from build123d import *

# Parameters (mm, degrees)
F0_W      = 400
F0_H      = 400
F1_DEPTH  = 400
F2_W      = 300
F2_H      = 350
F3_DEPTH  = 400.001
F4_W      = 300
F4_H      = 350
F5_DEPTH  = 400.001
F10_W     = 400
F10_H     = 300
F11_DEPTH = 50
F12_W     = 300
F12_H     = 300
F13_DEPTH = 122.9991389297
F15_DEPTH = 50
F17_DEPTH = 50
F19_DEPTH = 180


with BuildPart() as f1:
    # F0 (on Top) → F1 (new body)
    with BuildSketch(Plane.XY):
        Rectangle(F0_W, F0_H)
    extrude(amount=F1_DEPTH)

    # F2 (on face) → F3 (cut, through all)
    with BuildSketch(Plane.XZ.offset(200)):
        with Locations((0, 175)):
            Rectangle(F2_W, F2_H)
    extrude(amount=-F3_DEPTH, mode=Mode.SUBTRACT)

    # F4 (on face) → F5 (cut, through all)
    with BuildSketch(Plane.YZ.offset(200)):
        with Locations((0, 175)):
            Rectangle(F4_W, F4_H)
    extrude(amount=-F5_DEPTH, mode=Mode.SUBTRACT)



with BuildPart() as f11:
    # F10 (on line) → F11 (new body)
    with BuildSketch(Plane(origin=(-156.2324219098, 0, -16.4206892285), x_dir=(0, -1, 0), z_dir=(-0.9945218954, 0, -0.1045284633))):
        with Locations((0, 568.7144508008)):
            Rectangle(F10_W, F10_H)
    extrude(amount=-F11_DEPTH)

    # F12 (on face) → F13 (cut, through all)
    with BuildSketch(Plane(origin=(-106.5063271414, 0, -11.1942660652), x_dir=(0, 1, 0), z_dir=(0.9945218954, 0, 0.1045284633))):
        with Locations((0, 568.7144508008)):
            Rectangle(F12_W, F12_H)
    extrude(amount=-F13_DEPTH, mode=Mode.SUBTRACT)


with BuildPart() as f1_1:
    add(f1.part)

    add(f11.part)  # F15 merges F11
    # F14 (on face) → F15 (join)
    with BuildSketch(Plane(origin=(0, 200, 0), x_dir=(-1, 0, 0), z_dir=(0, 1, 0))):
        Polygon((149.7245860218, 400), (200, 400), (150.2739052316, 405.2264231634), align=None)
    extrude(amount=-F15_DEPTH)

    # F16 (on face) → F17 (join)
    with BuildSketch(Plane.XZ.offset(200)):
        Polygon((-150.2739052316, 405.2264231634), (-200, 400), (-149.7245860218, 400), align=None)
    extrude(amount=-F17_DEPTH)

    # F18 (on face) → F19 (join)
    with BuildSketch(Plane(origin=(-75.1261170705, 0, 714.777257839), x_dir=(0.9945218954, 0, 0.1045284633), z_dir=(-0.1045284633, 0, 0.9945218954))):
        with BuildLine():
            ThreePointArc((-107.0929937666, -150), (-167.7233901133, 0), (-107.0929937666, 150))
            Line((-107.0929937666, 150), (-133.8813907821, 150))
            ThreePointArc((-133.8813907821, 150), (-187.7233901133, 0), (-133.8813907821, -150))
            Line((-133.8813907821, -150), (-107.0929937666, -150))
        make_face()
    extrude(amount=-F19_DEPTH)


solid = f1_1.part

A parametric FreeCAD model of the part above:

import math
import FreeCAD as App
import Part
import Sketcher

V = App.Vector
Q = App.Units.Quantity

doc = App.newDocument("Part")
body = doc.addObject("PartDesign::Body", "Body")

# Sketch on XY plane
sketch1 = body.newObject("Sketcher::SketchObject", "Sketch")
sketch1.AttachmentSupport = (doc.getObject("XY_Plane"), [""])
sketch1.MapMode = "FlatFace"
sketch1.addGeometry([
    Part.LineSegment(V(-200, 200, 0), V(-200, -200, 0)),
    Part.LineSegment(V(-200, -200, 0), V(200, -200, 0)),
    Part.LineSegment(V(200, -200, 0), V(200, 200, 0)),
    Part.LineSegment(V(200, 200, 0), V(-200, 200, 0)),
], False)
sketch1.addConstraint([
    Sketcher.Constraint("Coincident", 0, 2, 1, 1),
    Sketcher.Constraint("Coincident", 1, 2, 2, 1),
    Sketcher.Constraint("Coincident", 2, 2, 3, 1),
    Sketcher.Constraint("Coincident", 3, 2, 0, 1),
    Sketcher.Constraint("Vertical", 0),
    Sketcher.Constraint("Horizontal", 1),
    Sketcher.Constraint("Vertical", 2),
    Sketcher.Constraint("Horizontal", 3),
    Sketcher.Constraint("Symmetric", 0, 2, 2, 2, -1, 1),
    Sketcher.Constraint("Equal", 3, 0),
    Sketcher.Constraint("DistanceX", 1, 1, 1, 2, Q("400 mm")),
])
pad1 = body.newObject("PartDesign::Pad", "Pad")
pad1.Profile = sketch1
pad1.Length = 400

# Sketch on XZ plane
sketch2 = body.newObject("Sketcher::SketchObject", "Sketch001")
sketch2.AttachmentSupport = (doc.getObject("XZ_Plane"), [""])
sketch2.MapMode = "FlatFace"
sketch2.AttachmentOffset = App.Placement(V(0, 0, 200), App.Rotation())
sketch2.addGeometry([
    Part.LineSegment(V(-150, 350, 0), V(-150, 0, 0)),
    Part.LineSegment(V(-150, 0, 0), V(150, 0, 0)),
    Part.LineSegment(V(150, 0, 0), V(150, 350, 0)),
    Part.LineSegment(V(150, 350, 0), V(-150, 350, 0)),
], False)
sketch2.addConstraint([
    Sketcher.Constraint("Coincident", 0, 2, 1, 1),
    Sketcher.Constraint("Coincident", 1, 2, 2, 1),
    Sketcher.Constraint("Coincident", 2, 2, 3, 1),
    Sketcher.Constraint("Coincident", 3, 2, 0, 1),
    Sketcher.Constraint("Vertical", 0),
    Sketcher.Constraint("Horizontal", 1),
    Sketcher.Constraint("Vertical", 2),
    Sketcher.Constraint("Horizontal", 3),
    Sketcher.Constraint("Symmetric", 0, 2, 1, 2, -1, 1),
    Sketcher.Constraint("DistanceX", 1, 1, 1, 2, Q("300 mm")),
    Sketcher.Constraint("DistanceY", 0, 2, 0, 1, Q("350 mm")),
])
pocket1 = body.newObject("PartDesign::Pocket", "Pocket")
pocket1.Profile = sketch2
pocket1.Type = "ThroughAll"

# Sketch on YZ plane
sketch3 = body.newObject("Sketcher::SketchObject", "Sketch002")
sketch3.AttachmentSupport = (doc.getObject("YZ_Plane"), [""])
sketch3.MapMode = "FlatFace"
sketch3.AttachmentOffset = App.Placement(V(0, 0, 200), App.Rotation())
sketch3.addGeometry([
    Part.LineSegment(V(-150, 350, 0), V(-150, 0, 0)),
    Part.LineSegment(V(-150, 0, 0), V(150, 0, 0)),
    Part.LineSegment(V(150, 0, 0), V(150, 350, 0)),
    Part.LineSegment(V(150, 350, 0), V(-150, 350, 0)),
], False)
sketch3.addConstraint([
    Sketcher.Constraint("Coincident", 0, 2, 1, 1),
    Sketcher.Constraint("Coincident", 1, 2, 2, 1),
    Sketcher.Constraint("Coincident", 2, 2, 3, 1),
    Sketcher.Constraint("Coincident", 3, 2, 0, 1),
    Sketcher.Constraint("Vertical", 0),
    Sketcher.Constraint("Horizontal", 1),
    Sketcher.Constraint("Vertical", 2),
    Sketcher.Constraint("Horizontal", 3),
    Sketcher.Constraint("Symmetric", 0, 2, 1, 2, -1, 1),
    Sketcher.Constraint("DistanceX", 1, 1, 1, 2, Q("300 mm")),
    Sketcher.Constraint("DistanceY", 0, 2, 0, 1, Q("350 mm")),
])
pocket2 = body.newObject("PartDesign::Pocket", "Pocket001")
pocket2.Profile = sketch3
pocket2.Type = "ThroughAll"
body2 = doc.addObject("PartDesign::Body", "Body001")
body2.AllowCompound = True

# Sketch on an angled plane
sketch4 = body2.newObject("Sketcher::SketchObject", "Sketch003")
sketch4.Placement = App.Placement(V(-156.232422, 0, -16.420689), App.Rotation(V(0, -1, 0), V(-0.104528463, 0, 0.994521895), V(-0.994521895, 0, -0.104528463), "ZXY"))
sketch4.addGeometry([
    Part.LineSegment(V(-200, 719, 0), V(-200, 419, 0)),
    Part.LineSegment(V(-200, 419, 0), V(200, 419, 0)),
    Part.LineSegment(V(200, 419, 0), V(200, 719, 0)),
    Part.LineSegment(V(200, 719, 0), V(-200, 719, 0)),
], False)
sketch4.addConstraint([
    Sketcher.Constraint("Coincident", 0, 2, 1, 1),
    Sketcher.Constraint("Coincident", 1, 2, 2, 1),
    Sketcher.Constraint("Coincident", 2, 2, 3, 1),
    Sketcher.Constraint("Coincident", 3, 2, 0, 1),
    Sketcher.Constraint("Vertical", 0),
    Sketcher.Constraint("Horizontal", 1),
    Sketcher.Constraint("Vertical", 2),
    Sketcher.Constraint("Horizontal", 3),
    Sketcher.Constraint("DistanceX", 1, 1, 1, 2, Q("400 mm")),
    Sketcher.Constraint("DistanceY", 0, 2, 0, 1, Q("300 mm")),
    Sketcher.Constraint("DistanceX", 0, 2, -1, 1, Q("200 mm")),
    Sketcher.Constraint("DistanceY", -1, 1, 0, 2, Q("418.71445 mm")),
])
pad2 = body2.newObject("PartDesign::Pad", "Pad001")
pad2.Profile = sketch4
pad2.Length = 50
pad2.Reversed = True

# Sketch on an angled plane
sketch5 = body2.newObject("Sketcher::SketchObject", "Sketch004")
sketch5.Placement = App.Placement(V(-106.506327, 0, -11.194266), App.Rotation(V(0, 1, 0), V(-0.104528463, 0, 0.994521895), V(0.994521895, 0, 0.104528463), "ZXY"))
sketch5.addGeometry([
    Part.LineSegment(V(-150, 719, 0), V(-150, 419, 0)),
    Part.LineSegment(V(-150, 419, 0), V(150, 419, 0)),
    Part.LineSegment(V(150, 419, 0), V(150, 719, 0)),
    Part.LineSegment(V(150, 719, 0), V(-150, 719, 0)),
], False)
sketch5.addConstraint([
    Sketcher.Constraint("Coincident", 0, 2, 1, 1),
    Sketcher.Constraint("Coincident", 1, 2, 2, 1),
    Sketcher.Constraint("Coincident", 2, 2, 3, 1),
    Sketcher.Constraint("Coincident", 3, 2, 0, 1),
    Sketcher.Constraint("Vertical", 0),
    Sketcher.Constraint("Horizontal", 1),
    Sketcher.Constraint("Vertical", 2),
    Sketcher.Constraint("Horizontal", 3),
    Sketcher.Constraint("Equal", 3, 0),
    Sketcher.Constraint("DistanceX", 1, 1, 1, 2, Q("300 mm")),
    Sketcher.Constraint("DistanceX", 0, 2, -1, 1, Q("150 mm")),
    Sketcher.Constraint("DistanceY", -1, 1, 0, 2, Q("418.71445 mm")),
])
pocket3 = body2.newObject("PartDesign::Pocket", "Pocket002")
pocket3.Profile = sketch5
pocket3.Type = "ThroughAll"
body.AllowCompound = True
doc.recompute()

boolean = body.newObject("PartDesign::Boolean", "Boolean")
boolean.Type = "Fuse"
boolean.addObjects([body2])

# Sketch on XZ plane
sketch6 = body.newObject("Sketcher::SketchObject", "Sketch005")
sketch6.AttachmentSupport = (doc.getObject("XZ_Plane"), [""])
sketch6.MapMode = "FlatFace"
sketch6.AttachmentOffset = App.Placement(V(0, 0, -200), App.Rotation())
sketch6.addGeometry([
    Part.LineSegment(V(-150, 400, 0), V(-200, 400, 0)),
    Part.LineSegment(V(-200, 400, 0), V(-150, 405, 0)),
    Part.LineSegment(V(-150, 405, 0), V(-150, 400, 0)),
], False)
sketch6.addConstraint([
    Sketcher.Constraint("Coincident", 0, 2, 1, 1),
    Sketcher.Constraint("Coincident", 1, 2, 2, 1),
    Sketcher.Constraint("Coincident", 2, 2, 0, 1),
    Sketcher.Constraint("Horizontal", 0),
    Sketcher.Constraint("Perpendicular", 1, 2),
    Sketcher.Constraint("Angle", 1, Q("6 deg")),
    Sketcher.Constraint("Distance", 1, Q("50 mm")),
    Sketcher.Constraint("DistanceX", 0, 2, -1, 1, Q("200 mm")),
    Sketcher.Constraint("DistanceY", -1, 1, 0, 2, Q("400 mm")),
])
pad3 = body.newObject("PartDesign::Pad", "Pad002")
pad3.Profile = sketch6
pad3.Length = 50

# Sketch on XZ plane
sketch7 = body.newObject("Sketcher::SketchObject", "Sketch006")
sketch7.AttachmentSupport = (doc.getObject("XZ_Plane"), [""])
sketch7.MapMode = "FlatFace"
sketch7.AttachmentOffset = App.Placement(V(0, 0, 200), App.Rotation())
sketch7.addGeometry([
    Part.LineSegment(V(-150, 405, 0), V(-200, 400, 0)),
    Part.LineSegment(V(-200, 400, 0), V(-150, 400, 0)),
    Part.LineSegment(V(-150, 400, 0), V(-150, 405, 0)),
], False)
sketch7.addConstraint([
    Sketcher.Constraint("Coincident", 0, 2, 1, 1),
    Sketcher.Constraint("Coincident", 1, 2, 2, 1),
    Sketcher.Constraint("Coincident", 2, 2, 0, 1),
    Sketcher.Constraint("Horizontal", 1),
    Sketcher.Constraint("Perpendicular", 0, 2),
    Sketcher.Constraint("Angle", 0, Q("-174 deg")),
    Sketcher.Constraint("Distance", 0, Q("50 mm")),
    Sketcher.Constraint("DistanceX", 0, 2, -1, 1, Q("200 mm")),
    Sketcher.Constraint("DistanceY", -1, 1, 0, 2, Q("400 mm")),
])
pad4 = body.newObject("PartDesign::Pad", "Pad003")
pad4.Profile = sketch7
pad4.Length = 50
pad4.Reversed = True

# Sketch on an angled plane
sketch8 = body.newObject("Sketcher::SketchObject", "Sketch007")
sketch8.Placement = App.Placement(V(-75.126117, 0, 714.777258), App.Rotation(V(0.994521895, 0, 0.104528463), V(0, 0.999999999, 0), V(-0.104528463, 0, 0.994521895), "ZXY"))
sketch8.addGeometry([
    Part.ArcOfCircle(Part.Circle(V(48, 0, 0), V(0, 0, 1), 216), math.radians(136), math.radians(224)),
    Part.LineSegment(V(-107, 150, 0), V(-134, 150, 0)),
    Part.ArcOfCircle(Part.Circle(V(48, 0, 0), V(0, 0, 1), 236), math.radians(141), math.radians(219)),
    Part.LineSegment(V(-134, -150, 0), V(-107, -150, 0)),
], False)
sketch8.addConstraint([
    Sketcher.Constraint("Coincident", 0, 1, 1, 1),
    Sketcher.Constraint("Coincident", 1, 2, 2, 1),
    Sketcher.Constraint("Coincident", 2, 2, 3, 1),
    Sketcher.Constraint("Coincident", 3, 2, 0, 2),
    Sketcher.Constraint("Horizontal", 1),
    Sketcher.Constraint("Horizontal", 3),
    Sketcher.Constraint("Coincident", 2, 3, 0, 3),
    Sketcher.Constraint("Symmetric", 1, 2, 2, 2, -1),
    Sketcher.Constraint("DistanceY", -1, 1, 0, 1, Q("150 mm")),
    Sketcher.Constraint("Radius", 0, Q("215.865692 mm")),
    Sketcher.Constraint("Radius", 2, Q("235.865692 mm")),
    Sketcher.Constraint("DistanceX", 1, 2, -1, 1, Q("133.881391 mm")),
])
pad5 = body.newObject("PartDesign::Pad", "Pad004")
pad5.Profile = sketch8
pad5.Length = 180
pad5.Reversed = True

doc.recompute()
